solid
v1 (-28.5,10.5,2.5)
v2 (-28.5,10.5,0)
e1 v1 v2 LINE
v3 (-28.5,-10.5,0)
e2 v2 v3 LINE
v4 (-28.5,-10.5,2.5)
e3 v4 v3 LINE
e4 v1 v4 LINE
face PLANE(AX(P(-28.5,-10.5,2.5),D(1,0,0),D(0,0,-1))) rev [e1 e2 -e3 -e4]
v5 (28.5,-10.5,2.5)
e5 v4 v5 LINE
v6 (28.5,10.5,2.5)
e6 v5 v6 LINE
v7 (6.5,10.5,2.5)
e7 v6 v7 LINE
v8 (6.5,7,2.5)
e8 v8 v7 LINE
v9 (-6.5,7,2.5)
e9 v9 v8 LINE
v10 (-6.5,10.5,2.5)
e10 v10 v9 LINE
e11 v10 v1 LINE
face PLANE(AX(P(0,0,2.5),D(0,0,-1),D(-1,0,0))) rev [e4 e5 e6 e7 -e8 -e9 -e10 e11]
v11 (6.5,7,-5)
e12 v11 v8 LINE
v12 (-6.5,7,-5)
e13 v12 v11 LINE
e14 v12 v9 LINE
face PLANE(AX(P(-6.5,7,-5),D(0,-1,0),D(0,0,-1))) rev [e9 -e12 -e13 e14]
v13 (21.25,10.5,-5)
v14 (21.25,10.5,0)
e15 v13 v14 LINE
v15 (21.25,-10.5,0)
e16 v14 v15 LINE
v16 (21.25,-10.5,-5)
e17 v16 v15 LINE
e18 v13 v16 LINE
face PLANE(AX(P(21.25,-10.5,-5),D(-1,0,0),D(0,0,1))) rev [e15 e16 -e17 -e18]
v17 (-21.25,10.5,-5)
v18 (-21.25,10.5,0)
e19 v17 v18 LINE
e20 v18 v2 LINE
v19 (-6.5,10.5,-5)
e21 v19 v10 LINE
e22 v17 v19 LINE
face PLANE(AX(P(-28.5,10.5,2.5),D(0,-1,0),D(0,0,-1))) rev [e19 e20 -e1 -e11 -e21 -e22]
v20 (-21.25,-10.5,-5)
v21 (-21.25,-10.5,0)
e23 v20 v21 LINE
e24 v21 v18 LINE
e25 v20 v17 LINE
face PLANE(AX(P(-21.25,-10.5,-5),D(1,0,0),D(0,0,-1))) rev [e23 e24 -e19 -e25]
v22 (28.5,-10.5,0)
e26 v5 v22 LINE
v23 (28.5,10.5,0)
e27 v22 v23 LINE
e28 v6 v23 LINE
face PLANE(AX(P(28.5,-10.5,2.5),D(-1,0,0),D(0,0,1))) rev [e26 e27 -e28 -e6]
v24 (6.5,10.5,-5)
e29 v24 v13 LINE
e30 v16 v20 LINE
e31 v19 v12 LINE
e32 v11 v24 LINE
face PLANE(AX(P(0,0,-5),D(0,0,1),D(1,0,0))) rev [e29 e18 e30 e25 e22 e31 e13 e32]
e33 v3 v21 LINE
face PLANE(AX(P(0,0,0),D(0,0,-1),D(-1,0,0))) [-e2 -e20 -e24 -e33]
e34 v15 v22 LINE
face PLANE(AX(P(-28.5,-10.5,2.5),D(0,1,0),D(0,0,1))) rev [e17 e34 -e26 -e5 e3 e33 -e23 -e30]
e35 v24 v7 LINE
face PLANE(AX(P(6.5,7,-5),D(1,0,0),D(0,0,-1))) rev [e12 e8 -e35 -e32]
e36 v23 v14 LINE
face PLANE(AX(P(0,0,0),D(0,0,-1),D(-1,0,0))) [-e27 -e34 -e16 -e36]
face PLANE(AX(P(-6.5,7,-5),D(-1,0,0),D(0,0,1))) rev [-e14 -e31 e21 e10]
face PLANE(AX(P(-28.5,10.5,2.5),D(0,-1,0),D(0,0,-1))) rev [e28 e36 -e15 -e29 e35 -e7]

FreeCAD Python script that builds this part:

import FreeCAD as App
import Part
import Sketcher
Q = App.Units.Quantity


def add_polygon(sketch, points):
    """Adds a closed chain of lines whose ends are joined by coincident constraints."""
    first, n = sketch.GeometryCount, len(points)
    for a, b in zip(points, points[1:] + points[:1]):
        sketch.addGeometry(Part.LineSegment(App.Vector(*a, 0), App.Vector(*b, 0)), False)
    for i in range(n):
        sketch.addConstraint(Sketcher.Constraint("Coincident", first + i, 2, first + (i + 1) % n, 1))

doc = App.newDocument("Part")
body = doc.addObject("PartDesign::Body", "Body")

sketch1 = body.newObject("Sketcher::SketchObject", "Sketch")
sketch1.AttachmentSupport = (doc.getObject("XY_Plane"), [""])
sketch1.MapMode = "FlatFace"
add_polygon(sketch1, [(-28, 10), (-28, -10), (28, -10), (28, 10)])
sketch1.addConstraint(Sketcher.Constraint("Vertical", 0))
sketch1.addConstraint(Sketcher.Constraint("Horizontal", 1))
sketch1.addConstraint(Sketcher.Constraint("Vertical", 2))
sketch1.addConstraint(Sketcher.Constraint("Horizontal", 3))
sketch1.addConstraint(Sketcher.Constraint("Symmetric", 0, 2, 2, 2, -1, 1))
sketch1.addConstraint(Sketcher.Constraint("DistanceX", 1, 1, 1, 2, Q("57 mm")))
sketch1.addConstraint(Sketcher.Constraint("DistanceY", 0, 2, 0, 1, Q("21 mm")))
pad1 = body.newObject("PartDesign::Pad", "Pad")
pad1.Profile = sketch1
pad1.Length = 2.5

sketch2 = body.newObject("Sketcher::SketchObject", "Sketch001")
sketch2.AttachmentSupport = (doc.getObject("XY_Plane"), [""])
sketch2.MapMode = "FlatFace"
add_polygon(sketch2, [(21, 10), (21, -10), (-21, -10), (-21, 10)])
sketch2.addConstraint(Sketcher.Constraint("Vertical", 0))
sketch2.addConstraint(Sketcher.Constraint("Horizontal", 1))
sketch2.addConstraint(Sketcher.Constraint("Vertical", 2))
sketch2.addConstraint(Sketcher.Constraint("Horizontal", 3))
sketch2.addConstraint(Sketcher.Constraint("Symmetric", 0, 2, 2, 2, -1, 1))
sketch2.addConstraint(Sketcher.Constraint("DistanceY", 0, 2, 0, 1, Q("21 mm")))
sketch2.addConstraint(Sketcher.Constraint("DistanceX", 1, 2, 1, 1, Q("42.5 mm")))
pad2 = body.newObject("PartDesign::Pad", "Pad001")
pad2.Profile = sketch2
pad2.Length = 5
pad2.Reversed = True

sketch3 = body.newObject("Sketcher::SketchObject", "Sketch002")
sketch3.AttachmentSupport = (doc.getObject("XY_Plane"), [""])
sketch3.MapMode = "FlatFace"
sketch3.AttachmentOffset = App.Placement(App.Vector(0, 0, 2.5), App.Rotation())
add_polygon(sketch3, [(-6.5, 10.5), (-6.5, 7), (6.5, 7), (6.5, 10.5)])
sketch3.addConstraint(Sketcher.Constraint("Vertical", 0))
sketch3.addConstraint(Sketcher.Constraint("Horizontal", 1))
sketch3.addConstraint(Sketcher.Constraint("Vertical", 2))
sketch3.addConstraint(Sketcher.Constraint("Horizontal", 3))
sketch3.addConstraint(Sketcher.Constraint("DistanceX", 1, 1, 1, 2, Q("13 mm")))
sketch3.addConstraint(Sketcher.Constraint("DistanceY", 0, 2, 0, 1, Q("3.5 mm")))
sketch3.addConstraint(Sketcher.Constraint("DistanceY", -1, 1, 0, 2, Q("7 mm")))
sketch3.addConstraint(Sketcher.Constraint("DistanceX", 0, 2, -1, 1, Q("6.5 mm")))
pocket1 = body.newObject("PartDesign::Pocket", "Pocket")
pocket1.Profile = sketch3
pocket1.Type = "ThroughAll"

doc.recompute()
